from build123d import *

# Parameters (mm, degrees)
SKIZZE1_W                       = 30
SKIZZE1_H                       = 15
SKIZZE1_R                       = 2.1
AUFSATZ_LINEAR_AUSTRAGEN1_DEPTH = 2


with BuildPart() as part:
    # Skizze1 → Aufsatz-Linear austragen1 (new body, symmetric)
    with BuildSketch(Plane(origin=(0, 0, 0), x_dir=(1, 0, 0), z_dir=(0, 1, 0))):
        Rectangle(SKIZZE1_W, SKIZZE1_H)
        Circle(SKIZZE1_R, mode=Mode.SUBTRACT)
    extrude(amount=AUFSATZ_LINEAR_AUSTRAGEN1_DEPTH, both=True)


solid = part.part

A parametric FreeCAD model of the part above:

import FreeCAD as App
import Part
import Sketcher

V = App.Vector

doc = App.newDocument("Part")
body = doc.addObject("PartDesign::Body", "Body")

# Sketch on XZ plane
sketch1 = body.newObject("Sketcher::SketchObject", "Sketch")
sketch1.AttachmentSupport = (doc.getObject("XZ_Plane"), [""])
sketch1.MapMode = "FlatFace"
sketch1.addGeometry([
    Part.LineSegment(V(-15, -7.5, 0), V(-15, 7.5, 0)),  # 0
    Part.LineSegment(V(-15, 7.5, 0), V(15, 7.5, 0)),  # 1
    Part.LineSegment(V(15, 7.5, 0), V(15, -7.5, 0)),  # 2
    Part.LineSegment(V(15, -7.5, 0), V(-15, -7.5, 0)),  # 3
    Part.Circle(V(0, 0, 0), V(0, 0, 1), 2.1),  # 4
], False)
sketch1.addConstraint([
    Sketcher.Constraint("Coincident", 0, 2, 1, 1),
    Sketcher.Constraint("Coincident", 1, 2, 2, 1),
    Sketcher.Constraint("Coincident", 2, 2, 3, 1),
    Sketcher.Constraint("Coincident", 3, 2, 0, 1),
    Sketcher.Constraint("Vertical", 0),
    Sketcher.Constraint("Horizontal", 1),
    Sketcher.Constraint("Vertical", 2),
    Sketcher.Constraint("Horizontal", 3),
    Sketcher.Constraint("Coincident", 4, 3, -1, 1),
    Sketcher.Constraint("Symmetric", 0, 2, 2, 2, -1, 1),
    Sketcher.Constraint("Diameter", 4, 4.2),
    Sketcher.Constraint("DistanceX", 1, 1, 1, 2, 30.0),
    Sketcher.Constraint("DistanceY", 0, 1, 0, 2, 15.0),
])
pad1 = body.newObject("PartDesign::Pad", "Pad")
pad1.Profile = sketch1
pad1.Length = 4
pad1.Midplane = True

doc.recompute()
